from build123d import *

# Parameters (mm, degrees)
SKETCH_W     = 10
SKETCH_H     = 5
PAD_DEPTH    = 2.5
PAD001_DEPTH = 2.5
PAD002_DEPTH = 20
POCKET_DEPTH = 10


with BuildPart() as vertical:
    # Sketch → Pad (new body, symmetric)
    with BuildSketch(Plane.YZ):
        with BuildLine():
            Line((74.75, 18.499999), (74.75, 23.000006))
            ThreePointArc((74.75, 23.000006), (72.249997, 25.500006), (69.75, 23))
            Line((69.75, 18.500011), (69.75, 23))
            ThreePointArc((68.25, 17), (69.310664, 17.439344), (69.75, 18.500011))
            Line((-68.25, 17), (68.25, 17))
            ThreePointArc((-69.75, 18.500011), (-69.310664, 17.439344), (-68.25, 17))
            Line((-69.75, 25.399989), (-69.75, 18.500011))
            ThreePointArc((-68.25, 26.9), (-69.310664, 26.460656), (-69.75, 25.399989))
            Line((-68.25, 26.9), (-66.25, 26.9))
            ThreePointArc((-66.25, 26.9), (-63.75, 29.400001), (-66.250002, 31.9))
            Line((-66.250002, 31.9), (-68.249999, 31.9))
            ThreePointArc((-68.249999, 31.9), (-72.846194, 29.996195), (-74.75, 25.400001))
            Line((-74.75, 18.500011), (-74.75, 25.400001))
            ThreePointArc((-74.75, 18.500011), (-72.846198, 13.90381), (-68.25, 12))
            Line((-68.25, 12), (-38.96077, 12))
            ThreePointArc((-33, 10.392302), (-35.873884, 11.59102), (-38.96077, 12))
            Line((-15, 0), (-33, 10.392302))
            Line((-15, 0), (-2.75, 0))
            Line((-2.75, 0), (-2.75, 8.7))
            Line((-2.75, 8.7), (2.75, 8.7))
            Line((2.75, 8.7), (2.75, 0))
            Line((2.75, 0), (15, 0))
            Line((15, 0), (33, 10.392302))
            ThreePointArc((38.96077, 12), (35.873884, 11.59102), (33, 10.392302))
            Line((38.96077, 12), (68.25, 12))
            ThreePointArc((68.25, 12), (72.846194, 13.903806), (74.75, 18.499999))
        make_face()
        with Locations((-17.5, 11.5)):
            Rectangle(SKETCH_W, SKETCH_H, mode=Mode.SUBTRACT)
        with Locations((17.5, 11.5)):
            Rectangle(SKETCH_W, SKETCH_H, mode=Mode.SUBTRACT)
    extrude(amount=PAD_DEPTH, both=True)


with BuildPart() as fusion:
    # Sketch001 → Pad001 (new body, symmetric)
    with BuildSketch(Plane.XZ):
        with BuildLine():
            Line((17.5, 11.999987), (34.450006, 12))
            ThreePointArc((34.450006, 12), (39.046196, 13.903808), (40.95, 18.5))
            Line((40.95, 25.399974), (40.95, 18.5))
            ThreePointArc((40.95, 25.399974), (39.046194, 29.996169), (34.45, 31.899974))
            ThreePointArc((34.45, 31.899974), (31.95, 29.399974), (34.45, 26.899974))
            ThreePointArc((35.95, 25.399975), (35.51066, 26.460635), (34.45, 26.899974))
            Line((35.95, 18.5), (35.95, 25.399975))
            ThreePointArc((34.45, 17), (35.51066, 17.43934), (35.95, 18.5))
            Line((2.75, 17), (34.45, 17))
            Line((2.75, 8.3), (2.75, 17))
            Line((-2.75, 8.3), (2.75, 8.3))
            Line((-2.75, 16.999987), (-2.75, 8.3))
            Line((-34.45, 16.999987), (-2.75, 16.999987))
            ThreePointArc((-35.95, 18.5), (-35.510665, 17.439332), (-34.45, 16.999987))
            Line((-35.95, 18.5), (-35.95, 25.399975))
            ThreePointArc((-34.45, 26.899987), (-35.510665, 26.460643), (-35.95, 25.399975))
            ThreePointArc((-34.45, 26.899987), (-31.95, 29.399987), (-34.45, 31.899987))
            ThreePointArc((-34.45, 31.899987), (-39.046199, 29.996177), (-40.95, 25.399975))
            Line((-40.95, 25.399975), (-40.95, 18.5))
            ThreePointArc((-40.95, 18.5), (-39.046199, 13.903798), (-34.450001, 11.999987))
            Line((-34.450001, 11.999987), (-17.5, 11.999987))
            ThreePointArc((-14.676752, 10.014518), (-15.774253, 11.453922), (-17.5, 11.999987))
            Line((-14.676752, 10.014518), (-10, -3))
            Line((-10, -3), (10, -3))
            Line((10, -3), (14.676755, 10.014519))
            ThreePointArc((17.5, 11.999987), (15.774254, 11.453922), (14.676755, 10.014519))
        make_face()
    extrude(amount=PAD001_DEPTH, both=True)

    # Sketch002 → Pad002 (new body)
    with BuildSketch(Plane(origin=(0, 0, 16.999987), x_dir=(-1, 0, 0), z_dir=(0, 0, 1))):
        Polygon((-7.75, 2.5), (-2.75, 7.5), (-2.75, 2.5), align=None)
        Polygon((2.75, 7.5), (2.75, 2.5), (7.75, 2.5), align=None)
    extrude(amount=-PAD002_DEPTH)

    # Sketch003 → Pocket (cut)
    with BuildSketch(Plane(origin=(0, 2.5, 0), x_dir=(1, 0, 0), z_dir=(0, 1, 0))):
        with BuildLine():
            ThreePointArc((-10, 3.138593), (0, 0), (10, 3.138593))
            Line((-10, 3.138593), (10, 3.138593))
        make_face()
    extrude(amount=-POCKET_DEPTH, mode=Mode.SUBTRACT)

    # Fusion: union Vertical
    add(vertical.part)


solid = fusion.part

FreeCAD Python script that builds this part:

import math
import FreeCAD as App
import Part
import Sketcher
Q = App.Units.Quantity

doc = App.newDocument("Part")
body = doc.addObject("PartDesign::Body", "Body")

sketch1 = body.newObject("Sketcher::SketchObject", "Sketch")
sketch1.AttachmentSupport = (doc.getObject("YZ_Plane"), [""])
sketch1.MapMode = "FlatFace"
sketch1.addGeometry([
    Part.LineSegment(App.Vector(74.8, 18.5, 0), App.Vector(74.8, 23, 0)),
    Part.ArcOfCircle(Part.Circle(App.Vector(72.2, 23, 0), App.Vector(0, 0, 1), 2.5), math.radians(0), math.radians(180)),
    Part.LineSegment(App.Vector(69.8, 23, 0), App.Vector(69.8, 18.5, 0)),
    Part.ArcOfCircle(Part.Circle(App.Vector(68.2, 18.5, 0), App.Vector(0, 0, 1), 1.5), math.radians(-90), math.radians(0)),
    Part.LineSegment(App.Vector(68.2, 17, 0), App.Vector(-68.2, 17, 0)),
    Part.ArcOfCircle(Part.Circle(App.Vector(-68.2, 18.5, 0), App.Vector(0, 0, 1), 1.5), math.radians(180), math.radians(270)),
    Part.LineSegment(App.Vector(-69.8, 18.5, 0), App.Vector(-69.8, 25.4, 0)),
    Part.ArcOfCircle(Part.Circle(App.Vector(-68.2, 25.4, 0), App.Vector(0, 0, 1), 1.5), math.radians(90), math.radians(180)),
    Part.LineSegment(App.Vector(-68.2, 26.9, 0), App.Vector(-66.2, 26.9, 0)),
    Part.ArcOfCircle(Part.Circle(App.Vector(-66.2, 29.4, 0), App.Vector(0, 0, 1), 2.5), math.radians(-90), math.radians(90)),
    Part.LineSegment(App.Vector(-66.3, 31.9, 0), App.Vector(-68.2, 31.9, 0)),
    Part.ArcOfCircle(Part.Circle(App.Vector(-68.3, 25.4, 0), App.Vector(0, 0, 1), 6.5), math.radians(90), math.radians(180)),
    Part.LineSegment(App.Vector(-74.8, 25.4, 0), App.Vector(-74.8, 18.5, 0)),
    Part.ArcOfCircle(Part.Circle(App.Vector(-68.2, 18.5, 0), App.Vector(0, 0, 1), 6.5), math.radians(180), math.radians(270)),
    Part.LineSegment(App.Vector(-68.2, 12, 0), App.Vector(-39, 12, 0)),
    Part.ArcOfCircle(Part.Circle(App.Vector(-39, 0.1, 0), App.Vector(0, 0, 1), 11.9), math.radians(60), math.radians(90)),
    Part.LineSegment(App.Vector(-33, 10.4, 0), App.Vector(-15, 0, 0)),
    Part.LineSegment(App.Vector(-15, 0, 0), App.Vector(-2.8, 0, 0)),
    Part.LineSegment(App.Vector(-2.8, 0, 0), App.Vector(-2.8, 8.7, 0)),
    Part.LineSegment(App.Vector(-2.8, 8.7, 0), App.Vector(2.8, 8.7, 0)),
    Part.LineSegment(App.Vector(2.8, 8.7, 0), App.Vector(2.8, 0, 0)),
    Part.LineSegment(App.Vector(2.8, 0, 0), App.Vector(15, 0, 0)),
    Part.LineSegment(App.Vector(15, 0, 0), App.Vector(33, 10.4, 0)),
    Part.ArcOfCircle(Part.Circle(App.Vector(39, 0.1, 0), App.Vector(0, 0, 1), 11.9), math.radians(90), math.radians(120)),
    Part.LineSegment(App.Vector(39, 12, 0), App.Vector(68.2, 12, 0)),
    Part.ArcOfCircle(Part.Circle(App.Vector(68.2, 18.5, 0), App.Vector(0, 0, 1), 6.5), math.radians(-90), math.radians(0)),
    Part.LineSegment(App.Vector(-12.5, 9, 0), App.Vector(-22.5, 9, 0)),
    Part.LineSegment(App.Vector(-22.5, 9, 0), App.Vector(-22.5, 14, 0)),
    Part.LineSegment(App.Vector(-22.5, 14, 0), App.Vector(-12.5, 14, 0)),
    Part.LineSegment(App.Vector(-12.5, 14, 0), App.Vector(-12.5, 9, 0)),
    Part.LineSegment(App.Vector(22.5, 9, 0), App.Vector(12.5, 9, 0)),
    Part.LineSegment(App.Vector(12.5, 9, 0), App.Vector(12.5, 14, 0)),
    Part.LineSegment(App.Vector(12.5, 14, 0), App.Vector(22.5, 14, 0)),
    Part.LineSegment(App.Vector(22.5, 14, 0), App.Vector(22.5, 9, 0)),
], False)
sketch1.addConstraint([
    Sketcher.Constraint("Tangent", 0, 2, 1, 1),
    Sketcher.Constraint("Coincident", 1, 2, 2, 1),
    Sketcher.Constraint("Coincident", 2, 2, 3, 2),
    Sketcher.Constraint("Tangent", 3, 1, 4, 1),
    Sketcher.Constraint("Tangent", 4, 2, 5, 2),
    Sketcher.Constraint("Coincident", 5, 1, 6, 1),
    Sketcher.Constraint("Coincident", 6, 2, 7, 2),
    Sketcher.Constraint("Tangent", 7, 1, 8, 1),
    Sketcher.Constraint("Tangent", 8, 2, 9, 1),
    Sketcher.Constraint("Tangent", 9, 2, 10, 1),
    Sketcher.Constraint("Tangent", 10, 2, 11, 1),
    Sketcher.Constraint("Tangent", 11, 2, 12, 1),
    Sketcher.Constraint("Tangent", 12, 2, 13, 1),
    Sketcher.Constraint("Tangent", 13, 2, 14, 1),
    Sketcher.Constraint("Tangent", 14, 2, 15, 2),
    Sketcher.Constraint("Coincident", 15, 1, 16, 1),
    Sketcher.Constraint("Coincident", 16, 2, 17, 1),
    Sketcher.Constraint("Coincident", 17, 2, 18, 1),
    Sketcher.Constraint("Coincident", 18, 2, 19, 1),
    Sketcher.Constraint("Coincident", 19, 2, 20, 1),
    Sketcher.Constraint("Coincident", 20, 2, 21, 1),
    Sketcher.Constraint("Coincident", 21, 2, 22, 1),
    Sketcher.Constraint("Coincident", 22, 2, 23, 2),
    Sketcher.Constraint("Tangent", 23, 1, 24, 1),
    Sketcher.Constraint("Tangent", 24, 2, 25, 1),
    Sketcher.Constraint("Tangent", 25, 2, 0, 1),
    Sketcher.Constraint("Coincident", 26, 2, 27, 1),
    Sketcher.Constraint("Coincident", 27, 2, 28, 1),
    Sketcher.Constraint("Coincident", 28, 2, 29, 1),
    Sketcher.Constraint("Coincident", 29, 2, 26, 1),
    Sketcher.Constraint("Coincident", 30, 2, 31, 1),
    Sketcher.Constraint("Coincident", 31, 2, 32, 1),
    Sketcher.Constraint("Coincident", 32, 2, 33, 1),
    Sketcher.Constraint("Coincident", 33, 2, 30, 1),
    Sketcher.Constraint("Vertical", 0),
    Sketcher.Constraint("Vertical", 2),
    Sketcher.Constraint("Horizontal", 4),
    Sketcher.Constraint("Vertical", 6),
    Sketcher.Constraint("Horizontal", 8),
    Sketcher.Constraint("Horizontal", 10),
    Sketcher.Constraint("Vertical", 12),
    Sketcher.Constraint("Horizontal", 14),
    Sketcher.Constraint("Horizontal", 17),
    Sketcher.Constraint("Vertical", 18),
    Sketcher.Constraint("Horizontal", 19),
    Sketcher.Constraint("Vertical", 20),
    Sketcher.Constraint("Horizontal", 21),
    Sketcher.Constraint("Horizontal", 24),
    Sketcher.Constraint("Horizontal", 26),
    Sketcher.Constraint("Vertical", 27),
    Sketcher.Constraint("Horizontal", 28),
    Sketcher.Constraint("Vertical", 29),
    Sketcher.Constraint("Horizontal", 30),
    Sketcher.Constraint("Vertical", 31),
    Sketcher.Constraint("Horizontal", 32),
    Sketcher.Constraint("Vertical", 33),
    Sketcher.Constraint("Coincident", 11, 3, 7, 3),
    Sketcher.Constraint("Coincident", 13, 3, 5, 3),
    Sketcher.Constraint("Coincident", 25, 3, 3, 3),
    Sketcher.Constraint("Equal", 3, 5),
    Sketcher.Constraint("Equal", 5, 7),
    Sketcher.Constraint("Equal", 1, 9),
    Sketcher.Constraint("Equal", 15, 23),
    Sketcher.Constraint("Symmetric", 17, 2, 20, 2, -1, 1),
    Sketcher.Constraint("Symmetric", 2, 2, 5, 1, -2),
    Sketcher.Constraint("Symmetric", 16, 2, 21, 2, -2),
    Sketcher.Constraint("Symmetric", 15, 1, 22, 2, -2),
    Sketcher.Constraint("Symmetric", 29, 2, 30, 2, -2),
    Sketcher.Constraint("Symmetric", 27, 2, 32, 2, -2),
    Sketcher.Constraint("Horizontal", 5, 1, 12, 2),
    Sketcher.Constraint("Radius", 1, Q("2.5 mm")),
    Sketcher.Constraint("Radius", 3, Q("1.500001 mm")),
    Sketcher.Constraint("DistanceX", 8, 1, 8, 2, Q("2 mm")),
    Sketcher.Constraint("DistanceX", 26, 2, 26, 1, Q("10 mm")),
    Sketcher.Constraint("DistanceY", 27, 1, 27, 2, Q("5 mm")),
    Sketcher.Constraint("Angle", 16, Q("-29.999993 deg")),
    Sketcher.Constraint("DistanceX", 4, 2, 4, 1, Q("136.5 mm")),
    Sketcher.Constraint("DistanceX", 19, 1, 19, 2, Q("5.5 mm")),
    Sketcher.Constraint("DistanceY", 18, 1, 18, 2, Q("8.7 mm")),
    Sketcher.Constraint("DistanceY", -1, 1, 1, 2, Q("23 mm")),
    Sketcher.Constraint("DistanceY", -1, 1, 3, 1, Q("17 mm")),
    Sketcher.Constraint("DistanceX", 15, 1, -1, 1, Q("33 mm")),
    Sketcher.Constraint("DistanceX", 16, 2, -1, 1, Q("15 mm")),
    Sketcher.Constraint("DistanceY", -1, 1, 26, 2, Q("9 mm")),
    Sketcher.Constraint("DistanceY", -1, 1, 7, 3, Q("25.399999 mm")),
    Sketcher.Constraint("DistanceX", 26, 2, -1, 1, Q("22.5 mm")),
    Sketcher.Constraint("Radius", 15, Q("11.854065 mm")),
    Sketcher.Constraint("DistanceY", 6, 1, 6, 2, Q("6.899978 mm")),
    Sketcher.Constraint("DistanceY", 0, 1, 0, 2, Q("4.500007 mm")),
])
pad1 = body.newObject("PartDesign::Pad", "Pad")
pad1.Profile = sketch1
pad1.Length = 5
pad1.Midplane = True
body2 = doc.addObject("PartDesign::Body", "Body001")
body2.AllowCompound = True

sketch2 = body2.newObject("Sketcher::SketchObject", "Sketch001")
sketch2.AttachmentSupport = (doc.getObject("XZ_Plane001"), [""])
sketch2.MapMode = "FlatFace"
sketch2.addGeometry([
    Part.LineSegment(App.Vector(17.5, 12, 0), App.Vector(34.5, 12, 0)),
    Part.ArcOfCircle(Part.Circle(App.Vector(34.4, 18.5, 0), App.Vector(0, 0, 1), 6.5), math.radians(-90), math.radians(0)),
    Part.LineSegment(App.Vector(41, 18.5, 0), App.Vector(41, 25.4, 0)),
    Part.ArcOfCircle(Part.Circle(App.Vector(34.5, 25.4, 0), App.Vector(0, 0, 1), 6.5), math.radians(0), math.radians(90)),
    Part.ArcOfCircle(Part.Circle(App.Vector(34.5, 29.4, 0), App.Vector(0, 0, 1), 2.5), math.radians(90), math.radians(270)),
    Part.ArcOfCircle(Part.Circle(App.Vector(34.5, 25.4, 0), App.Vector(0, 0, 1), 1.5), math.radians(0), math.radians(90)),
    Part.LineSegment(App.Vector(36, 25.4, 0), App.Vector(36, 18.5, 0)),
    Part.ArcOfCircle(Part.Circle(App.Vector(34.4, 18.5, 0), App.Vector(0, 0, 1), 1.5), math.radians(-90), math.radians(0)),
    Part.LineSegment(App.Vector(34.5, 17, 0), App.Vector(2.8, 17, 0)),
    Part.LineSegment(App.Vector(2.8, 17, 0), App.Vector(2.8, 8.3, 0)),
    Part.LineSegment(App.Vector(2.8, 8.3, 0), App.Vector(-2.8, 8.3, 0)),
    Part.LineSegment(App.Vector(-2.8, 8.3, 0), App.Vector(-2.8, 17, 0)),
    Part.LineSegment(App.Vector(-2.8, 17, 0), App.Vector(-34.5, 17, 0)),
    Part.ArcOfCircle(Part.Circle(App.Vector(-34.4, 18.5, 0), App.Vector(0, 0, 1), 1.5), math.radians(180), math.radians(270)),
    Part.LineSegment(App.Vector(-36, 18.5, 0), App.Vector(-36, 25.4, 0)),
    Part.ArcOfCircle(Part.Circle(App.Vector(-34.5, 25.4, 0), App.Vector(0, 0, 1), 1.5), math.radians(90), math.radians(180)),
    Part.ArcOfCircle(Part.Circle(App.Vector(-34.5, 29.4, 0), App.Vector(0, 0, 1), 2.5), math.radians(-90), math.radians(90)),
    Part.ArcOfCircle(Part.Circle(App.Vector(-34.5, 25.4, 0), App.Vector(0, 0, 1), 6.5), math.radians(90), math.radians(180)),
    Part.LineSegment(App.Vector(-41, 25.4, 0), App.Vector(-41, 18.5, 0)),
    Part.ArcOfCircle(Part.Circle(App.Vector(-34.4, 18.5, 0), App.Vector(0, 0, 1), 6.5), math.radians(180), math.radians(270)),
    Part.LineSegment(App.Vector(-34.5, 12, 0), App.Vector(-17.5, 12, 0)),
    Part.ArcOfCircle(Part.Circle(App.Vector(-17.5, 9, 0), App.Vector(0, 0, 1), 3), math.radians(20), math.radians(90)),
    Part.LineSegment(App.Vector(-14.7, 10, 0), App.Vector(-10, -3, 0)),
    Part.LineSegment(App.Vector(-10, -3, 0), App.Vector(10, -3, 0)),
    Part.LineSegment(App.Vector(10, -3, 0), App.Vector(14.7, 10, 0)),
    Part.ArcOfCircle(Part.Circle(App.Vector(17.5, 9, 0), App.Vector(0, 0, 1), 3), math.radians(90), math.radians(160)),
], False)
sketch2.addConstraint([
    Sketcher.Constraint("Tangent", 0, 2, 1, 1),
    Sketcher.Constraint("Tangent", 1, 2, 2, 1),
    Sketcher.Constraint("Tangent", 2, 2, 3, 1),
    Sketcher.Constraint("Tangent", 3, 2, 4, 1),
    Sketcher.Constraint("Tangent", 4, 2, 5, 2),
    Sketcher.Constraint("Tangent", 5, 1, 6, 1),
    Sketcher.Constraint("Tangent", 6, 2, 7, 2),
    Sketcher.Constraint("Tangent", 7, 1, 8, 1),
    Sketcher.Constraint("Coincident", 8, 2, 9, 1),
    Sketcher.Constraint("Coincident", 9, 2, 10, 1),
    Sketcher.Constraint("Coincident", 10, 2, 11, 1),
    Sketcher.Constraint("Coincident", 11, 2, 12, 1),
    Sketcher.Constraint("Tangent", 12, 2, 13, 2),
    Sketcher.Constraint("Coincident", 13, 1, 14, 1),
    Sketcher.Constraint("Coincident", 14, 2, 15, 2),
    Sketcher.Constraint("Tangent", 15, 1, 16, 1),
    Sketcher.Constraint("Tangent", 16, 2, 17, 1),
    Sketcher.Constraint("Coincident", 17, 2, 18, 1),
    Sketcher.Constraint("Tangent", 18, 2, 19, 1),
    Sketcher.Constraint("Tangent", 19, 2, 20, 1),
    Sketcher.Constraint("Tangent", 20, 2, 21, 2),
    Sketcher.Constraint("Tangent", 21, 1, 22, 1),
    Sketcher.Constraint("Coincident", 22, 2, 23, 1),
    Sketcher.Constraint("Coincident", 23, 2, 24, 1),
    Sketcher.Constraint("Tangent", 24, 2, 25, 2),
    Sketcher.Constraint("Tangent", 25, 1, 0, 1),
    Sketcher.Constraint("Vertical", 2),
    Sketcher.Constraint("Vertical", 6),
    Sketcher.Constraint("Horizontal", 8),
    Sketcher.Constraint("Vertical", 9),
    Sketcher.Constraint("Horizontal", 10),
    Sketcher.Constraint("Vertical", 11),
    Sketcher.Constraint("Horizontal", 12),
    Sketcher.Constraint("Vertical", 14),
    Sketcher.Constraint("Vertical", 18),
    Sketcher.Constraint("Horizontal", 20),
    Sketcher.Constraint("Horizontal", 23),
    Sketcher.Constraint("Coincident", 5, 3, 3, 3),
    Sketcher.Constraint("Coincident", 7, 3, 1, 3),
    Sketcher.Constraint("Coincident", 17, 3, 15, 3),
    Sketcher.Constraint("Coincident", 19, 3, 13, 3),
    Sketcher.Constraint("Equal", 1, 3),
    Sketcher.Constraint("Equal", 7, 13),
    Sketcher.Constraint("Equal", 13, 15),
    Sketcher.Constraint("Equal", 4, 16),
    Sketcher.Constraint("Symmetric", 21, 3, 25, 3, -2),
    Sketcher.Constraint("Symmetric", 6, 2, 13, 1, -2),
    Sketcher.Constraint("Symmetric", 21, 1, 24, 2, -2),
    Sketcher.Constraint("Horizontal", 5, 1, 14, 2),
    Sketcher.Constraint("Horizontal", 14, 2, 17, 2),
    Sketcher.Constraint("Horizontal", 13, 1, 18, 2),
    Sketcher.Constraint("Vertical", 3, 3, 4, 3),
    Sketcher.Constraint("Vertical", 15, 3, 16, 3),
    Sketcher.Constraint("Equal", 8, 12),
    Sketcher.Constraint("Radius", 21, Q("3.000001 mm")),
    Sketcher.Constraint("Radius", 1, Q("6.5 mm")),
    Sketcher.Constraint("Radius", 4, Q("2.5 mm")),
    Sketcher.Constraint("DistanceX", 23, 1, 23, 2, Q("20 mm")),
    Sketcher.Constraint("DistanceX", 8, 2, 8, 1, Q("31.7 mm")),
    Sketcher.Constraint("DistanceX", 10, 2, 10, 1, Q("5.5 mm")),
    Sketcher.Constraint("DistanceY", 9, 2, 9, 1, Q("8.7 mm")),
    Sketcher.Constraint("DistanceY", -1, 1, 0, 2, Q("12 mm")),
    Sketcher.Constraint("DistanceY", 22, 2, -1, 1, Q("3 mm")),
    Sketcher.Constraint("DistanceX", 20, 1, 20, 2, Q("16.950001 mm")),
    Sketcher.Constraint("DistanceY", 13, 3, 15, 3, Q("6.900001 mm")),
    Sketcher.Constraint("DistanceY", 2, 1, 2, 2, Q("6.899974 mm")),
])
pad2 = body2.newObject("PartDesign::Pad", "Pad001")
pad2.Profile = sketch2
pad2.Length = 5
pad2.Midplane = True

sketch3 = body2.newObject("Sketcher::SketchObject", "Sketch002")
sketch3.AttachmentSupport = (doc.getObject("XY_Plane001"), [""])
sketch3.MapMode = "FlatFace"
sketch3.AttachmentOffset = App.Placement(App.Vector(0, 0, 16.999987), App.Rotation())
sketch3.addGeometry([
    Part.LineSegment(App.Vector(3, -8, 0), App.Vector(8, -2, 0)),
    Part.LineSegment(App.Vector(8, -2, 0), App.Vector(3, -2, 0)),
    Part.LineSegment(App.Vector(3, -2, 0), App.Vector(3, -8, 0)),
    Part.LineSegment(App.Vector(-3, -8, 0), App.Vector(-3, -2, 0)),
    Part.LineSegment(App.Vector(-3, -2, 0), App.Vector(-8, -2, 0)),
    Part.LineSegment(App.Vector(-8, -2, 0), App.Vector(-3, -8, 0)),
], False)
sketch3.addConstraint([
    Sketcher.Constraint("Coincident", 0, 2, 1, 1),
    Sketcher.Constraint("Coincident", 1, 2, 2, 1),
    Sketcher.Constraint("Coincident", 2, 2, 0, 1),
    Sketcher.Constraint("Coincident", 3, 2, 4, 1),
    Sketcher.Constraint("Coincident", 4, 2, 5, 1),
    Sketcher.Constraint("Coincident", 5, 2, 3, 1),
    Sketcher.Constraint("Horizontal", 1),
    Sketcher.Constraint("Vertical", 2),
    Sketcher.Constraint("Vertical", 3),
    Sketcher.Constraint("Horizontal", 4),
    Sketcher.Constraint("Symmetric", 1, 2, 3, 2, -2),
    Sketcher.Constraint("Perpendicular", 0, 5),
    Sketcher.Constraint("Horizontal", 2, 2, 5, 2),
    Sketcher.Constraint("Equal", 1, 4),
    Sketcher.Constraint("DistanceX", 1, 2, 1, 1, Q("5 mm")),
    Sketcher.Constraint("DistanceY", 0, 2, -1, 1, Q("2.5 mm")),
    Sketcher.Constraint("DistanceX", 3, 2, 1, 2, Q("5.5 mm")),
])
pad3 = body2.newObject("PartDesign::Pad", "Pad002")
pad3.Profile = sketch3
pad3.Length = 20
pad3.Reversed = True

sketch4 = body2.newObject("Sketcher::SketchObject", "Sketch003")
sketch4.AttachmentSupport = (doc.getObject("XZ_Plane001"), [""])
sketch4.MapMode = "FlatFace"
sketch4.AttachmentOffset = App.Placement(App.Vector(0, 0, -2.5), App.Rotation())
sketch4.addGeometry([
    Part.ArcOfCircle(Part.Circle(App.Vector(0, -18, 0), App.Vector(0, 0, 1), 18), math.radians(55), math.radians(125)),
    Part.LineSegment(App.Vector(10, -3, 0), App.Vector(-10, -3, 0)),
], False)
sketch4.addConstraint([
    Sketcher.Constraint("Coincident", 0, 1, 1, 1),
    Sketcher.Constraint("Coincident", 1, 2, 0, 2),
    Sketcher.Constraint("Horizontal", 1),
    Sketcher.Constraint("PointOnObject", 0, 3, -2),
    Sketcher.Constraint("Radius", 0, Q("17.500002 mm")),
    Sketcher.Constraint("DistanceX", 1, 2, 1, 1, Q("20 mm")),
    Sketcher.Constraint("DistanceY", 0, 3, -1, 1, Q("17.500002 mm")),
])
pocket1 = body2.newObject("PartDesign::Pocket", "Pocket")
pocket1.Profile = sketch4
pocket1.Length = 10
pocket1.Reversed = True
doc.recompute()

boolean = body2.newObject("PartDesign::Boolean", "Boolean")
boolean.Type = "Fuse"
boolean.addObjects([body])

doc.recompute()
